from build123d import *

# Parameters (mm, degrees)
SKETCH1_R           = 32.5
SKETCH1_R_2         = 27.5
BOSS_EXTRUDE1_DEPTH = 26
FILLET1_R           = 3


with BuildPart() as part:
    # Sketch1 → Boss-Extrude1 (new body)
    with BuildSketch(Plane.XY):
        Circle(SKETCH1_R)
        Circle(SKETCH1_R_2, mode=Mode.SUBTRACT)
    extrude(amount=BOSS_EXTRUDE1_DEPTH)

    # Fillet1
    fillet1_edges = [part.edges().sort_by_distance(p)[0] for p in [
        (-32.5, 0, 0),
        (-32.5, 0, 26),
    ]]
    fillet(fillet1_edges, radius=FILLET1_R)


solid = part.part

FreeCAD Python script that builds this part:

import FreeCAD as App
import Part
import Sketcher

V = App.Vector


def edges_at(feature, points):
    """Names of the edges that pass closest to the given points."""
    edges = feature.Shape.Edges
    near = lambda p: min(range(len(edges)), key=lambda i: edges[i].distToShape(Part.Vertex(*p))[0])
    return sorted({f"Edge{near(p) + 1}" for p in points})

doc = App.newDocument("Part")
body = doc.addObject("PartDesign::Body", "Body")

# Sketch on XY plane
sketch1 = body.newObject("Sketcher::SketchObject", "Sketch")
sketch1.AttachmentSupport = (doc.getObject("XY_Plane"), [""])
sketch1.MapMode = "FlatFace"
sketch1.addGeometry(Part.Circle(V(0, 0, 0), V(0, 0, 1), 32), False)
sketch1.addGeometry(Part.Circle(V(0, 0, 0), V(0, 0, 1), 28), False)
sketch1.addConstraint(Sketcher.Constraint("Coincident", 0, 3, -1, 1))
sketch1.addConstraint(Sketcher.Constraint("Coincident", 1, 3, -1, 1))
sketch1.addConstraint(Sketcher.Constraint("Diameter", 0, 65.0))
sketch1.addConstraint(Sketcher.Constraint("Diameter", 1, 55.0))
pad1 = body.newObject("PartDesign::Pad", "Pad")
pad1.Profile = sketch1
pad1.Length = 26
doc.recompute()

fillet = body.newObject("PartDesign::Fillet", "Fillet")
fillet.Base = (pad1, edges_at(pad1, [(-32.5, 0, 0), (-32.5, 0, 26)]))
fillet.Radius = 3

doc.recompute()
